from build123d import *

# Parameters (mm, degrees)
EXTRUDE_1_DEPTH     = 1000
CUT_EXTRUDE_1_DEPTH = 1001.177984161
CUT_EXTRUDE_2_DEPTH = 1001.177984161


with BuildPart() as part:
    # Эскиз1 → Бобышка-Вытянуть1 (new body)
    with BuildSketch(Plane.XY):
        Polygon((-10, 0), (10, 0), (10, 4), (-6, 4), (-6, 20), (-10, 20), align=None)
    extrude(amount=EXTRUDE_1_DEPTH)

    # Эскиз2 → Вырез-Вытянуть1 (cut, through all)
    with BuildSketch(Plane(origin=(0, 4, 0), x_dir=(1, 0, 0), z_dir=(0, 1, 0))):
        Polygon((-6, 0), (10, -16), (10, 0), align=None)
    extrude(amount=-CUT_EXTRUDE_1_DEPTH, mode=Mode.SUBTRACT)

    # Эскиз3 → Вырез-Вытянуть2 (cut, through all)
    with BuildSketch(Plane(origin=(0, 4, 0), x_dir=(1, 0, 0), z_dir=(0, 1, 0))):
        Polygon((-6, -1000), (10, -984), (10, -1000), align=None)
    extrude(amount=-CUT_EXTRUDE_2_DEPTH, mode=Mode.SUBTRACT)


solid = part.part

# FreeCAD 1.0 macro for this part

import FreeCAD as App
import Part
import Sketcher
from FreeCAD import Vector

doc = App.newDocument("Part")
body = doc.addObject("PartDesign::Body", "Body")

# Sketch on XY plane
sketch1 = body.newObject("Sketcher::SketchObject", "Sketch")
sketch1.AttachmentSupport = (doc.getObject("XY_Plane"), [""])
sketch1.MapMode = "FlatFace"
sketch1.addGeometry([
    Part.LineSegment(Vector(-10, 0, 0), Vector(10, 0, 0)),  # 0
    Part.LineSegment(Vector(10, 0, 0), Vector(10, 4, 0)),  # 1
    Part.LineSegment(Vector(10, 4, 0), Vector(-6, 4, 0)),  # 2
    Part.LineSegment(Vector(-6, 4, 0), Vector(-6, 20, 0)),  # 3
    Part.LineSegment(Vector(-6, 20, 0), Vector(-10, 20, 0)),  # 4
    Part.LineSegment(Vector(-10, 20, 0), Vector(-10, 0, 0)),  # 5
], False)
sketch1.addConstraint([
    Sketcher.Constraint("Coincident", 0, 2, 1, 1),
    Sketcher.Constraint("Coincident", 1, 2, 2, 1),
    Sketcher.Constraint("Coincident", 2, 2, 3, 1),
    Sketcher.Constraint("Coincident", 3, 2, 4, 1),
    Sketcher.Constraint("Coincident", 4, 2, 5, 1),
    Sketcher.Constraint("Coincident", 5, 2, 0, 1),
    Sketcher.Constraint("Horizontal", 0),
    Sketcher.Constraint("Vertical", 1),
    Sketcher.Constraint("Horizontal", 2),
    Sketcher.Constraint("Vertical", 3),
    Sketcher.Constraint("Horizontal", 4),
    Sketcher.Constraint("Vertical", 5),
    Sketcher.Constraint("Symmetric", 0, 2, 5, 2, -1, 1),
    Sketcher.Constraint("Equal", 4, 1),
    Sketcher.Constraint("Equal", 2, 3),
    Sketcher.Constraint("DistanceX", 0, 1, 0, 2, 20.0),
    Sketcher.Constraint("DistanceX", 2, 2, 2, 1, 16.0),
])
pad1 = body.newObject("PartDesign::Pad", "Pad")
pad1.Profile = sketch1
pad1.Length = 1000

# Sketch on XZ plane
sketch2 = body.newObject("Sketcher::SketchObject", "Sketch001")
sketch2.AttachmentSupport = (doc.getObject("XZ_Plane"), [""])
sketch2.MapMode = "FlatFace"
sketch2.AttachmentOffset = App.Placement(Vector(0, 0, -4), App.Rotation())
sketch2.addGeometry([
    Part.LineSegment(Vector(-6, 0, 0), Vector(10, 16, 0)),
    Part.LineSegment(Vector(10, 16, 0), Vector(10, 0, 0)),
    Part.LineSegment(Vector(10, 0, 0), Vector(-6, 0, 0)),
], False)
sketch2.addConstraint([
    Sketcher.Constraint("Coincident", 0, 2, 1, 1),
    Sketcher.Constraint("Coincident", 1, 2, 2, 1),
    Sketcher.Constraint("Coincident", 2, 2, 0, 1),
    Sketcher.Constraint("Vertical", 1),
    Sketcher.Constraint("Horizontal", 2),
    Sketcher.Constraint("PointOnObject", 1, 2, -1),
    Sketcher.Constraint("Equal", 2, 1),
    Sketcher.Constraint("DistanceX", 2, 2, 2, 1, 16.0),
    Sketcher.Constraint("DistanceX", -1, 1, 0, 2, 10.0),
])
pocket1 = body.newObject("PartDesign::Pocket", "Pocket")
pocket1.Profile = sketch2
pocket1.Type = "ThroughAll"
pocket1.Reversed = True

# Sketch on XZ plane
sketch3 = body.newObject("Sketcher::SketchObject", "Sketch002")
sketch3.AttachmentSupport = (doc.getObject("XZ_Plane"), [""])
sketch3.MapMode = "FlatFace"
sketch3.AttachmentOffset = App.Placement(Vector(0, 0, -4), App.Rotation())
sketch3.addGeometry([
    Part.LineSegment(Vector(10, 984, 0), Vector(-6, 1000, 0)),
    Part.LineSegment(Vector(-6, 1000, 0), Vector(10, 1000, 0)),
    Part.LineSegment(Vector(10, 1000, 0), Vector(10, 984, 0)),
], False)
sketch3.addConstraint([
    Sketcher.Constraint("Coincident", 0, 2, 1, 1),
    Sketcher.Constraint("Coincident", 1, 2, 2, 1),
    Sketcher.Constraint("Coincident", 2, 2, 0, 1),
    Sketcher.Constraint("Horizontal", 1),
    Sketcher.Constraint("Vertical", 2),
    Sketcher.Constraint("Equal", 1, 2),
    Sketcher.Constraint("DistanceX", 1, 1, 1, 2, 16.0),
    Sketcher.Constraint("DistanceX", 0, 2, -1, 1, 6.0),
    Sketcher.Constraint("DistanceY", -1, 1, 0, 2, 1000.0),
])
pocket2 = body.newObject("PartDesign::Pocket", "Pocket001")
pocket2.Profile = sketch3
pocket2.Type = "ThroughAll"
pocket2.Reversed = True

doc.recompute()
